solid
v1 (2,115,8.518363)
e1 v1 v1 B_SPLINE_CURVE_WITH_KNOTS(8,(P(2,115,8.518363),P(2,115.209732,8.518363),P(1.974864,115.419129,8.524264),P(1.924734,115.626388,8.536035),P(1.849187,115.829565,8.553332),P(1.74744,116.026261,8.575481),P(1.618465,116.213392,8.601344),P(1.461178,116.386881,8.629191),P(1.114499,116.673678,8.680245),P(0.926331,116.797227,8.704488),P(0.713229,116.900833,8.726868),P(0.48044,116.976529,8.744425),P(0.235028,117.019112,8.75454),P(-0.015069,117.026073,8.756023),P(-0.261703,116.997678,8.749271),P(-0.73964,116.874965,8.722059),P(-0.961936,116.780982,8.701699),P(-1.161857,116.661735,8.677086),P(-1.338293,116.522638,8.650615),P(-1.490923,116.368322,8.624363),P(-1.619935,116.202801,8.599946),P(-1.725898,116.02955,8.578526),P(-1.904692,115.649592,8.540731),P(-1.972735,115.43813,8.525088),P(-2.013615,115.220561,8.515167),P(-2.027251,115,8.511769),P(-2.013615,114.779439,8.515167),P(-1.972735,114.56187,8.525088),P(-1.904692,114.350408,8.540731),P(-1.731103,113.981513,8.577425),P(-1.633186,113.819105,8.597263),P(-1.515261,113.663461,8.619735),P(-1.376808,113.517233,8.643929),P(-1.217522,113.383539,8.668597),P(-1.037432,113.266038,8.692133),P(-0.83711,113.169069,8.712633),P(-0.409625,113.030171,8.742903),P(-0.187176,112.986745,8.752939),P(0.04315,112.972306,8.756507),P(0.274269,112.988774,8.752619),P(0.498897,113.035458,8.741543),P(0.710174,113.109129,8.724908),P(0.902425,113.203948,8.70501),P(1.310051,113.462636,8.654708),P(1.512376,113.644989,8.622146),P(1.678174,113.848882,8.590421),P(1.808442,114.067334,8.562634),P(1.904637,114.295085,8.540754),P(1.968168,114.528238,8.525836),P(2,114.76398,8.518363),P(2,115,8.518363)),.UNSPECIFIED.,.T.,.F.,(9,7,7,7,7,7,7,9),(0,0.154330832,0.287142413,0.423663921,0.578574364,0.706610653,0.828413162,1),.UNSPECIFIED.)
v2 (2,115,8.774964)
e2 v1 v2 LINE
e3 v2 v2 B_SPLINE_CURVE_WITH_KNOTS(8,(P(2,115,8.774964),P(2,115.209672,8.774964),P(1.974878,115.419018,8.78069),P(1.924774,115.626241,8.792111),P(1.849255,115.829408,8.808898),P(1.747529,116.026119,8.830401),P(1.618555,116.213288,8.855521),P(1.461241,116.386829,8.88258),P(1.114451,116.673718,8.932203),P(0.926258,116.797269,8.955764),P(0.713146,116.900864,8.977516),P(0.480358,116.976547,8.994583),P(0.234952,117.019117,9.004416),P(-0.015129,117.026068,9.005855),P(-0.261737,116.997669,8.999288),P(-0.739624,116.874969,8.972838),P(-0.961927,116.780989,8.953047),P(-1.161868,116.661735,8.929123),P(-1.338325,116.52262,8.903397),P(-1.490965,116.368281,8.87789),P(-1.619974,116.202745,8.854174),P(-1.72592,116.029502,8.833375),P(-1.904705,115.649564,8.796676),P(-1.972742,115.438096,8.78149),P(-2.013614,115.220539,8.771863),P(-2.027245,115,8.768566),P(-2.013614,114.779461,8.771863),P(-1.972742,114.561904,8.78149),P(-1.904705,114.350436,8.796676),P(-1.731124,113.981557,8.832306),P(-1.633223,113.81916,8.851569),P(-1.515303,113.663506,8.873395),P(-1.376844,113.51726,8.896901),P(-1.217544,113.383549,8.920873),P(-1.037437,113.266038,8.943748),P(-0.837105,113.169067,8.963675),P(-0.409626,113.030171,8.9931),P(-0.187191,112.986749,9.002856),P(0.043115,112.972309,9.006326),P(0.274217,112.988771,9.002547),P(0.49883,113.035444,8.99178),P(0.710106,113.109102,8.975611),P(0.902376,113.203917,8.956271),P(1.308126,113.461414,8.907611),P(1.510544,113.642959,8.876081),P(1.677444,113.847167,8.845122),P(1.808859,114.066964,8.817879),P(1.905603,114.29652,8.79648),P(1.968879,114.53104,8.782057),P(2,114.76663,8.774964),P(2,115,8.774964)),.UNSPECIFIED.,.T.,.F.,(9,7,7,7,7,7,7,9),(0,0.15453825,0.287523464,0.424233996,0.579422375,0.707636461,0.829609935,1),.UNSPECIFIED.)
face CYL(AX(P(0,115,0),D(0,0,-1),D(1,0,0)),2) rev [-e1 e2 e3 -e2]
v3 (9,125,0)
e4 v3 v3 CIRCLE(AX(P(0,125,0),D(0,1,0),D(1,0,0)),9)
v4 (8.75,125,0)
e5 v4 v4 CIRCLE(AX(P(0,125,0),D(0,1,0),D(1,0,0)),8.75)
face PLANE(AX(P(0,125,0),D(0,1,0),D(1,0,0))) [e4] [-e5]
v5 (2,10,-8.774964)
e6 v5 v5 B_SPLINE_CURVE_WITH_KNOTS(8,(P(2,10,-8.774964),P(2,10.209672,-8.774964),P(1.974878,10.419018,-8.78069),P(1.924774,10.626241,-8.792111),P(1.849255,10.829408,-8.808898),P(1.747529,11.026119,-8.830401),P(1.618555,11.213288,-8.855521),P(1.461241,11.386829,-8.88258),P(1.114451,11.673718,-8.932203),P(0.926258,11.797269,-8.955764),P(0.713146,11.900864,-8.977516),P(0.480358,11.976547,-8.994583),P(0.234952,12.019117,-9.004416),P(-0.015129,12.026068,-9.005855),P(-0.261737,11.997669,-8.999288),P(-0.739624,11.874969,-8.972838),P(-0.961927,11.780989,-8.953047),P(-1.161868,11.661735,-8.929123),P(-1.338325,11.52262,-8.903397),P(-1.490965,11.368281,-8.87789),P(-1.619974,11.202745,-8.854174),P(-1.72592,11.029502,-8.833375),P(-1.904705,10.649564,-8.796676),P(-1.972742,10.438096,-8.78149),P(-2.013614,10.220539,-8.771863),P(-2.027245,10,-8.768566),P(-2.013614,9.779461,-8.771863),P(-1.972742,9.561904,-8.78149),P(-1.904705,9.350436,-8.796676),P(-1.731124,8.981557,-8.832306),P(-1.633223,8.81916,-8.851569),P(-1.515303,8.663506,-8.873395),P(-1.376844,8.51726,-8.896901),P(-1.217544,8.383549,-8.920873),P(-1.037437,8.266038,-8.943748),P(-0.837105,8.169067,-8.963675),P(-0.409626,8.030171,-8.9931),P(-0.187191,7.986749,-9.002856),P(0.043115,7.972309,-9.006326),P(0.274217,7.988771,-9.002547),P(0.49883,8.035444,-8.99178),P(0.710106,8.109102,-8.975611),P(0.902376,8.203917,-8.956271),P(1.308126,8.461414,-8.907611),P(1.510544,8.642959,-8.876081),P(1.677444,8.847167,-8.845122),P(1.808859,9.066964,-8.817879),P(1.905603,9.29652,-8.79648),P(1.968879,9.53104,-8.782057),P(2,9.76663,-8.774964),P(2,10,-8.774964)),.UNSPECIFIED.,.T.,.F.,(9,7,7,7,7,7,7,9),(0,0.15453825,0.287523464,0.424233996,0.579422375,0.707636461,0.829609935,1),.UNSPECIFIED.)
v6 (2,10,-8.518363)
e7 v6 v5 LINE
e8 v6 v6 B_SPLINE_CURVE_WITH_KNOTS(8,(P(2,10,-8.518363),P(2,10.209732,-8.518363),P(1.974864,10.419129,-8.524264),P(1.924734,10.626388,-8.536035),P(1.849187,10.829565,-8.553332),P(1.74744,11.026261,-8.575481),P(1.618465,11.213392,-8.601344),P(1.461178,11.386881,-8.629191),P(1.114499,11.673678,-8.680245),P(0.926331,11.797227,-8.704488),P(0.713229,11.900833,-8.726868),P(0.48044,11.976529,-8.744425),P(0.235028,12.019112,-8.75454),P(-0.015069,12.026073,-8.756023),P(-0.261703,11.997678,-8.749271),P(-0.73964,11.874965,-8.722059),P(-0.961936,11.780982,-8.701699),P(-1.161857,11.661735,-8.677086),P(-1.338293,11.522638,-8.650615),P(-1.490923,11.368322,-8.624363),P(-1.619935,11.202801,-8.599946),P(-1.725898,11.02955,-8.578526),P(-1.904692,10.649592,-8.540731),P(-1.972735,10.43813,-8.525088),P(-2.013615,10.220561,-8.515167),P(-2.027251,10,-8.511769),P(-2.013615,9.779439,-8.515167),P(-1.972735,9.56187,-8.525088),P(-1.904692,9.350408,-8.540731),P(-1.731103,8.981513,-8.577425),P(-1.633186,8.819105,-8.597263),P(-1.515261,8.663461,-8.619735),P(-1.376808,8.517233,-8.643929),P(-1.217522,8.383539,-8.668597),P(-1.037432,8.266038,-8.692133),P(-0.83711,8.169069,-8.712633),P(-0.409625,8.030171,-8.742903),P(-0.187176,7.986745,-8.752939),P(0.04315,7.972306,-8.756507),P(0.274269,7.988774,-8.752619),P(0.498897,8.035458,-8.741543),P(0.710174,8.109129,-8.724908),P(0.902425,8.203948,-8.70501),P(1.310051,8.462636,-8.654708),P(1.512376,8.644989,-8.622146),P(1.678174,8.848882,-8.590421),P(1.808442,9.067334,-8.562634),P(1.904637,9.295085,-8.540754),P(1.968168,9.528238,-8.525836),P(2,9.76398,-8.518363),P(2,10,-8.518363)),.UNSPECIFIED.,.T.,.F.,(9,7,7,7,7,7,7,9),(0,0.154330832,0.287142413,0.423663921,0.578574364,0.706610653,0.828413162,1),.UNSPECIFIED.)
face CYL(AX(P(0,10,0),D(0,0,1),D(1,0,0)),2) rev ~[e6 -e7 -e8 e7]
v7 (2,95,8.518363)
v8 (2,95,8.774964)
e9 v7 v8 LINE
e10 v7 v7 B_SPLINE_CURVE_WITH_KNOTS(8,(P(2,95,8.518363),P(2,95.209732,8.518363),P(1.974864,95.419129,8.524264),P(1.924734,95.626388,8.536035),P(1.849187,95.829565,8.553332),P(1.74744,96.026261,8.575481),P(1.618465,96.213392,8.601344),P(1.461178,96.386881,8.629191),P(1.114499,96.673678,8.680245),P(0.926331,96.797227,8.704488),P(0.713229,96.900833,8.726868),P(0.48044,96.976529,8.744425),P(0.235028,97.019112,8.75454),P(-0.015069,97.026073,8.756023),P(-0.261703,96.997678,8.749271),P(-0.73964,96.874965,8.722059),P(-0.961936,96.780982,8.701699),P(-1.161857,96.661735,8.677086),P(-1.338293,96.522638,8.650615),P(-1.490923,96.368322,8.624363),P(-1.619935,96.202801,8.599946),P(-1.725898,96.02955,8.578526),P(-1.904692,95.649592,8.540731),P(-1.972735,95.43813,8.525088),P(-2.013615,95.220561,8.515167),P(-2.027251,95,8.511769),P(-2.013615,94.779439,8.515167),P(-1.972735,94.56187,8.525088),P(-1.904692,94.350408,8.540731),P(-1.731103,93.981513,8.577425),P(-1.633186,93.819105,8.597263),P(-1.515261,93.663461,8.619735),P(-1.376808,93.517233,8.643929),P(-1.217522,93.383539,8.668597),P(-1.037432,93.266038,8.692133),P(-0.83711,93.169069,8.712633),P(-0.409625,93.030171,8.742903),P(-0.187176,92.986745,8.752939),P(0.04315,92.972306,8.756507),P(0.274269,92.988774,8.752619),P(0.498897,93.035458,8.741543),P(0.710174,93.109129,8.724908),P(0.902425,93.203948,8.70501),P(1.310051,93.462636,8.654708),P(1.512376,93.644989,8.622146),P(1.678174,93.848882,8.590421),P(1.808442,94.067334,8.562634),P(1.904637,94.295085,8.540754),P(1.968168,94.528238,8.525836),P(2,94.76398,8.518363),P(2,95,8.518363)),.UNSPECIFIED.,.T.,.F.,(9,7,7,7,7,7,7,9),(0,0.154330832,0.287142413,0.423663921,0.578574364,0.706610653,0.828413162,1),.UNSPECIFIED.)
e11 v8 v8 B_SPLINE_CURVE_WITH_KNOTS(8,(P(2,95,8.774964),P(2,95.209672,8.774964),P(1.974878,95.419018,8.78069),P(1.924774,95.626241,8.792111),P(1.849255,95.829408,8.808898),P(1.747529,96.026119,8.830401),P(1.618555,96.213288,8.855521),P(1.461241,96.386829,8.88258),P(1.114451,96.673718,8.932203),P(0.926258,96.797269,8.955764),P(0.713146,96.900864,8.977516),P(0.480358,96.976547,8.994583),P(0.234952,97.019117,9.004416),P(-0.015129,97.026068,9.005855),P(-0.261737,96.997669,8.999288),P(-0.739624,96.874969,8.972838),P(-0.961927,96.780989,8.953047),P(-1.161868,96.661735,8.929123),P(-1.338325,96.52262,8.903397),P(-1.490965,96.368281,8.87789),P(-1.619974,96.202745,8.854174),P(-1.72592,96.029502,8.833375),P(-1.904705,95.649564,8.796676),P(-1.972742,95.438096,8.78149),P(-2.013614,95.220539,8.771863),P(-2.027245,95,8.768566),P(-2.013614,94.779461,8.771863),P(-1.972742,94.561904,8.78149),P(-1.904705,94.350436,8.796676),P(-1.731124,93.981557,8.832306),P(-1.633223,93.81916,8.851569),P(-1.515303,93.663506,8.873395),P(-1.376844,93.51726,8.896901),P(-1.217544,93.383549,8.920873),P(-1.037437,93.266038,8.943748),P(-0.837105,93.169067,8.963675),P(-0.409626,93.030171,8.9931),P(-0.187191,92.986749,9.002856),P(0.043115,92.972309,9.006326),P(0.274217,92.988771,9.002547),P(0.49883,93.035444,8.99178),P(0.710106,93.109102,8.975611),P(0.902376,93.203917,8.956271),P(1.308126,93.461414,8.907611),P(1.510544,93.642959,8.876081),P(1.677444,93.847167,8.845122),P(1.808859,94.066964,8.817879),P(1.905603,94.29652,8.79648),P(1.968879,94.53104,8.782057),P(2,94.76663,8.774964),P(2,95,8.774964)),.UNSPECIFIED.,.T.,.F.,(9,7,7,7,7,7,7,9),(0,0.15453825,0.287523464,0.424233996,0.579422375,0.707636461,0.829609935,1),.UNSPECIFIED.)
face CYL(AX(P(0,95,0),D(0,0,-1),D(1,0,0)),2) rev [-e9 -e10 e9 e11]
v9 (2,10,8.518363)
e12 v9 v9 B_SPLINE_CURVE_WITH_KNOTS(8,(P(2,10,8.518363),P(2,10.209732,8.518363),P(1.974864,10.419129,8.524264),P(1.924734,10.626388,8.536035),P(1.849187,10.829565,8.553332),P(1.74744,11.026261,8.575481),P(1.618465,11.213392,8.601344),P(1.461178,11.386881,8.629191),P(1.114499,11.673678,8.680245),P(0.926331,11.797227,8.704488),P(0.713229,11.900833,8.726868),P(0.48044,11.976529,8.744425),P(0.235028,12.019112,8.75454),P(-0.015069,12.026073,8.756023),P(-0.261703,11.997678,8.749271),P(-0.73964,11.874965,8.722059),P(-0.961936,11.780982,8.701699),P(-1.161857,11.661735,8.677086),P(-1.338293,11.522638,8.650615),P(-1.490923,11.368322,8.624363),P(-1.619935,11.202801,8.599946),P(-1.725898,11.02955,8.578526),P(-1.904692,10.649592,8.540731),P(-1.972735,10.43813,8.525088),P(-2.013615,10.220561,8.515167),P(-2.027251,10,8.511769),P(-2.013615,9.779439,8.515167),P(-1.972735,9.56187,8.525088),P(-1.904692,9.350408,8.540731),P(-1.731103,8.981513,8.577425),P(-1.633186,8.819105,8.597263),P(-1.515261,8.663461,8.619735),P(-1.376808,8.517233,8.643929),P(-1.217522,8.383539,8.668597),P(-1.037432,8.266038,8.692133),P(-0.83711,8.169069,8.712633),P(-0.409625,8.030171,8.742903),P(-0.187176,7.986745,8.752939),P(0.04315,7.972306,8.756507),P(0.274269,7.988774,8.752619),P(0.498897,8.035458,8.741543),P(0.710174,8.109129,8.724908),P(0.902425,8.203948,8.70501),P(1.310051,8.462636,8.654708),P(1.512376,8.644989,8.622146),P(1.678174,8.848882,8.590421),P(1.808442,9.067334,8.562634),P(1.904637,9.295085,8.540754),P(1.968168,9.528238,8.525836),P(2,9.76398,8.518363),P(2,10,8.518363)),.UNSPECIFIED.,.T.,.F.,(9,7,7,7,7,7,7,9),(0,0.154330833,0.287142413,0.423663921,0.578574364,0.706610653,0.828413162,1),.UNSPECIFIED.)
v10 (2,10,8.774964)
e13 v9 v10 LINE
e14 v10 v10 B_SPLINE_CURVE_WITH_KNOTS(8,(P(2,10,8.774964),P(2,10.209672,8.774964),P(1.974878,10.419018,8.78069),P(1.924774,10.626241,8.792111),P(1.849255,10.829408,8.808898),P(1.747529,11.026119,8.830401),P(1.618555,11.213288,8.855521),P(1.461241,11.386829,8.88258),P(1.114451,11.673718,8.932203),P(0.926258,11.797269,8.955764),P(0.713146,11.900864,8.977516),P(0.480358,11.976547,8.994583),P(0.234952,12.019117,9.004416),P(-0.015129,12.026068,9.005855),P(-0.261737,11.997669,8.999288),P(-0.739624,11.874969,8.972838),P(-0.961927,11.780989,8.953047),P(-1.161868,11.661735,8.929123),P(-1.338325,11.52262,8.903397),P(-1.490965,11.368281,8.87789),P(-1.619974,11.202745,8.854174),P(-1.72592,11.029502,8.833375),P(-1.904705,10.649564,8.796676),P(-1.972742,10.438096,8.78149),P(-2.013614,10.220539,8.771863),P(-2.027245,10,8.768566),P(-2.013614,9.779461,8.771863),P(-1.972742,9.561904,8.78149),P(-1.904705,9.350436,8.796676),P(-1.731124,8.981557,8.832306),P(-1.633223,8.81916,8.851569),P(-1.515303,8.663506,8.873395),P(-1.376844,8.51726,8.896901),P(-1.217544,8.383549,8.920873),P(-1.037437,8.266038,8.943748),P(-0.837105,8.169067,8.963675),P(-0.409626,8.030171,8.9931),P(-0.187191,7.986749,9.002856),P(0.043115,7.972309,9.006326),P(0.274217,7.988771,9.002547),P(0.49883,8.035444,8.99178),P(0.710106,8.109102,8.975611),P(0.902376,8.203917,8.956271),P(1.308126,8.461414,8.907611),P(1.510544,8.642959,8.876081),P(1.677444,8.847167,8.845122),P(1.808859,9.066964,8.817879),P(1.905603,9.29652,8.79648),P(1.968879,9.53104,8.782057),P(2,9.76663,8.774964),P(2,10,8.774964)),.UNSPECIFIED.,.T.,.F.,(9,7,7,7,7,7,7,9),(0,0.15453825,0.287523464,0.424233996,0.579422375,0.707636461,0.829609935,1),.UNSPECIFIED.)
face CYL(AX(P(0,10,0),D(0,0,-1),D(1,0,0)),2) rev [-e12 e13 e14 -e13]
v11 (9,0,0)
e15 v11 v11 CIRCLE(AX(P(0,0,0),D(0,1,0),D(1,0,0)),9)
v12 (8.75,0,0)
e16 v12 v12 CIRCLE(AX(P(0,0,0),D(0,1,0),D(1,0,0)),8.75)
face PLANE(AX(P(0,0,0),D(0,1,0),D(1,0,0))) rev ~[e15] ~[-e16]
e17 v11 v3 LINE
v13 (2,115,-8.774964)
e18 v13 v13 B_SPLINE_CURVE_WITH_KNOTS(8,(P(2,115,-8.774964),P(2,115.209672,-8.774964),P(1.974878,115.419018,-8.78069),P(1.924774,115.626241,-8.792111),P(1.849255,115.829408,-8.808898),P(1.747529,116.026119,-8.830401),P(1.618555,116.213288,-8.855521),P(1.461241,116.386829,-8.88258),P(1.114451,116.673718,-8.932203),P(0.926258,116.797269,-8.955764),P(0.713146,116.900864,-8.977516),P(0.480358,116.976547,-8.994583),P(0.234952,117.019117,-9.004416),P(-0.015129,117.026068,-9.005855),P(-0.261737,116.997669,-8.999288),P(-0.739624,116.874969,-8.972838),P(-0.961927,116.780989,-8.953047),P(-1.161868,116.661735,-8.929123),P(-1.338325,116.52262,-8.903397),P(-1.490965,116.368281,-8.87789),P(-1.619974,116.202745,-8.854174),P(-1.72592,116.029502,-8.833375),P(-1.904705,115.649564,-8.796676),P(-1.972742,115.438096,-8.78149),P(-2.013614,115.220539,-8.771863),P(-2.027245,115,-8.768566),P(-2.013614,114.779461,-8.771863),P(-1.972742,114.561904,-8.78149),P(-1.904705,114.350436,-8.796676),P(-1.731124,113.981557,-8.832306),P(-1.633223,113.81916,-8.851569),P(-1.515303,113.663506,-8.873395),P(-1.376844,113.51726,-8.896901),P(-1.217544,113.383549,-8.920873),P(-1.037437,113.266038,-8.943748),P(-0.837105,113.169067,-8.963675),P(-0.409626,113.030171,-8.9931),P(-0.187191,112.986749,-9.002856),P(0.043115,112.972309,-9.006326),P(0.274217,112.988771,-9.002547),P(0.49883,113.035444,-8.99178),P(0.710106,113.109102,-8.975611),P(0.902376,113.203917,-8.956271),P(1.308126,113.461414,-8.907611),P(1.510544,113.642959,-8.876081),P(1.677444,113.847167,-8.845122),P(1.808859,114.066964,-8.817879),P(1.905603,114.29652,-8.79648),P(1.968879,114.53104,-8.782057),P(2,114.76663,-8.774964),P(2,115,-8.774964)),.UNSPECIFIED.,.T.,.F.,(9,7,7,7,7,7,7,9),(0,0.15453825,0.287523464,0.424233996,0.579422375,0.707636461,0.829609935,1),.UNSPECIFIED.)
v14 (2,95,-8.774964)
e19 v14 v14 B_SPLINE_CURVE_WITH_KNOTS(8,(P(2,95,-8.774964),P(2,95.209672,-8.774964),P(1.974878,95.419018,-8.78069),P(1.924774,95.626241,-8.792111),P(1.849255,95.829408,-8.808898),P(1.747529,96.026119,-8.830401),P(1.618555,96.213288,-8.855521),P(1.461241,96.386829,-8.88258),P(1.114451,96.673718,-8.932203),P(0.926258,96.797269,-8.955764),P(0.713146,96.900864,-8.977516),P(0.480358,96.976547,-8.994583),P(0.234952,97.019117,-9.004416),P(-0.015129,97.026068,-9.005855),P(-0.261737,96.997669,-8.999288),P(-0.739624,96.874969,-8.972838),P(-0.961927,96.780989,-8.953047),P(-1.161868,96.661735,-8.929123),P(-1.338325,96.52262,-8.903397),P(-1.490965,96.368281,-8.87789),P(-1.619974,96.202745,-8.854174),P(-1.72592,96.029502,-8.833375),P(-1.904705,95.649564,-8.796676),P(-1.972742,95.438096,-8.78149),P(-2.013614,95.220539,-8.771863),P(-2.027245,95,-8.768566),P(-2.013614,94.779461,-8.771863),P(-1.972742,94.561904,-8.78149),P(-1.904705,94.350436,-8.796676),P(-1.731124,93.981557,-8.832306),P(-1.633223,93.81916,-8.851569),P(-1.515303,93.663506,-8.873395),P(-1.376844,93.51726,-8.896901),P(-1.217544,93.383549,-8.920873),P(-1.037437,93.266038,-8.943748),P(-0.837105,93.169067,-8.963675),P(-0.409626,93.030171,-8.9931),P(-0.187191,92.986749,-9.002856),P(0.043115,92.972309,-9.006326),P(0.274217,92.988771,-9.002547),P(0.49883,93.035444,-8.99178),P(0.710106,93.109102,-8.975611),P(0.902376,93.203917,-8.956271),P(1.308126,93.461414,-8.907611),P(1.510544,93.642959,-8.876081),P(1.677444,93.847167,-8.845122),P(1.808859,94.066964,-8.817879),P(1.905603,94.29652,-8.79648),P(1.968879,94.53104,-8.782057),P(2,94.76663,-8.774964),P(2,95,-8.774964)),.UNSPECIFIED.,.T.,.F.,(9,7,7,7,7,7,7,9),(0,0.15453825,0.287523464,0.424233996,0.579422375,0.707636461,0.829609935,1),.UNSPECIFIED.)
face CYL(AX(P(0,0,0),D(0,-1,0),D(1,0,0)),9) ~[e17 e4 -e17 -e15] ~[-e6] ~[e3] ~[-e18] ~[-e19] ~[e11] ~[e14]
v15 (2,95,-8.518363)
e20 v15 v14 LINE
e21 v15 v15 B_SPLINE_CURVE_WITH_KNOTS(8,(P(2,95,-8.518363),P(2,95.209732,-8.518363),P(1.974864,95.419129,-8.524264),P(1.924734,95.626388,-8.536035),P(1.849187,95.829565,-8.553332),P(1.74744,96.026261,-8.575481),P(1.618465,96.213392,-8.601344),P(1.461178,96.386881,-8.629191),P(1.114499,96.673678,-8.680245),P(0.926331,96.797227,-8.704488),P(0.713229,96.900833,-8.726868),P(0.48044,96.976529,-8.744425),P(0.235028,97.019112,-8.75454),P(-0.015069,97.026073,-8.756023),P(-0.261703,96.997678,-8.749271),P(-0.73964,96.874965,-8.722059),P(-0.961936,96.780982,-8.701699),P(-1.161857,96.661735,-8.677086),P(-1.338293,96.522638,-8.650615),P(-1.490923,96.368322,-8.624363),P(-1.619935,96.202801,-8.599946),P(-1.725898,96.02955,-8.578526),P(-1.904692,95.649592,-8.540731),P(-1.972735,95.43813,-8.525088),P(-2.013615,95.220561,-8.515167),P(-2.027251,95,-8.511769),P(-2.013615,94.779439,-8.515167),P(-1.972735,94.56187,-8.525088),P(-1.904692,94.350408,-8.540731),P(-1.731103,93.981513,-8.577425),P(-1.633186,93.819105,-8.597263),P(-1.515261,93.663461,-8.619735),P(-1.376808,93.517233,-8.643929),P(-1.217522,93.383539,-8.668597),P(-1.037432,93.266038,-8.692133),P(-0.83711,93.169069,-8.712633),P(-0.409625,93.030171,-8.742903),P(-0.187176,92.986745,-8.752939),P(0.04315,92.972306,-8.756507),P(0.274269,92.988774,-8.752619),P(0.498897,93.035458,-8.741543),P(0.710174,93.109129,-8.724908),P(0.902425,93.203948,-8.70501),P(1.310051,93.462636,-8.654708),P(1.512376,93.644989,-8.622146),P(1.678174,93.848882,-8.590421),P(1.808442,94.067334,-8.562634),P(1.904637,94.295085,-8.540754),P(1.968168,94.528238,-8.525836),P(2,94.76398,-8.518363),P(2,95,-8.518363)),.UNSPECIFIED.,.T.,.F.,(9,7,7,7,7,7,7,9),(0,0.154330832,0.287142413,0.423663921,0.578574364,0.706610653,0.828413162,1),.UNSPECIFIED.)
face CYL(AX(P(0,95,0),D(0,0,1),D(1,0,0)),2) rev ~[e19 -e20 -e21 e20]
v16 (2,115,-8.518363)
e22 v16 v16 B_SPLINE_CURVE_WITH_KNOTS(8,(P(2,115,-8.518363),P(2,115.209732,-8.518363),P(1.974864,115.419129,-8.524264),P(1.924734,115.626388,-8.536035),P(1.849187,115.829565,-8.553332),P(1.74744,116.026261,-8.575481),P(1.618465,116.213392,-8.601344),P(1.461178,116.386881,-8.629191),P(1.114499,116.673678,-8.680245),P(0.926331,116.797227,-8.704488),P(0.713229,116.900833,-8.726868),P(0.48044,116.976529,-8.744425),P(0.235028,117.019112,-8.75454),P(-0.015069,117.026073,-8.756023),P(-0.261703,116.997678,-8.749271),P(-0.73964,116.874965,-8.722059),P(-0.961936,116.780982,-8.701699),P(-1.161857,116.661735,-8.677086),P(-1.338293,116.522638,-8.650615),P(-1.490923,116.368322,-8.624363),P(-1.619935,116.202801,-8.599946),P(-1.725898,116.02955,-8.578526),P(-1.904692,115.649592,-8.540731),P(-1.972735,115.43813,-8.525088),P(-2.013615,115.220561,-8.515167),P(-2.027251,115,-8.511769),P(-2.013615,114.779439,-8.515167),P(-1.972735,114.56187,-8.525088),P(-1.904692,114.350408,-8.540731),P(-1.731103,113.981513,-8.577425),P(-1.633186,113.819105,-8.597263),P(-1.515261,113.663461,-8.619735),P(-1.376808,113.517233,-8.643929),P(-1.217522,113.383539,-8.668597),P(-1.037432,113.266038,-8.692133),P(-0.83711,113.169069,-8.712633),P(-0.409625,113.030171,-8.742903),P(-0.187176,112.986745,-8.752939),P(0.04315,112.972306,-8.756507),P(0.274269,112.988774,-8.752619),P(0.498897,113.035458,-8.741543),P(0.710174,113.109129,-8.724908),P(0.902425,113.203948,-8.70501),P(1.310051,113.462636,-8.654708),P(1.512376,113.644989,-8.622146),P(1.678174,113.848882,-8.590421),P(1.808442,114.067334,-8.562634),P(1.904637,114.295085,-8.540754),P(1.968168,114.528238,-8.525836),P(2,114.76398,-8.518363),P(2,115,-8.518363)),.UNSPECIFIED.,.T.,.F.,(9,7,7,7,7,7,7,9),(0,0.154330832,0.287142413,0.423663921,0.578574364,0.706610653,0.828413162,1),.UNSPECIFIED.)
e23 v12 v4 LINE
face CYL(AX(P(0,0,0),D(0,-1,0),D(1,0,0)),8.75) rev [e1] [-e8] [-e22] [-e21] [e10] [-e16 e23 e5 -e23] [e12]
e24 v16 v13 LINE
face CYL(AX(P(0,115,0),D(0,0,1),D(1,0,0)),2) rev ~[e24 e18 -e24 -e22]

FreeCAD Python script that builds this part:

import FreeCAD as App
import Part
import Sketcher

V = App.Vector
Q = App.Units.Quantity

doc = App.newDocument("Part")
body = doc.addObject("PartDesign::Body", "Body")

sketch1 = doc.addObject("Sketcher::SketchObject", "Sketch")
body.addObject(sketch1)
sketch1.AttachmentSupport = (doc.XZ_Plane, [""])
sketch1.MapMode = "FlatFace"
sketch1.addGeometry([
    Part.Circle(V(0, 0, 0), V(0, 0, 1), 9),
    Part.Circle(V(0, 0, 0), V(0, 0, 1), 9),
], False)
sketch1.addConstraint([
    Sketcher.Constraint("Coincident", 0, 3, -1, 1),
    Sketcher.Constraint("Coincident", 1, 3, -1, 1),
    Sketcher.Constraint("Diameter", 0, Q("18 mm")),
    Sketcher.Constraint("Diameter", 1, Q("17.5 mm")),
])
pad1 = doc.addObject("PartDesign::Pad", "Pad")
body.addObject(pad1)
pad1.Profile = sketch1
pad1.Length = 125
pad1.Reversed = True

sketch2 = doc.addObject("Sketcher::SketchObject", "Sketch001")
body.addObject(sketch2)
sketch2.AttachmentSupport = (doc.XY_Plane, [""])
sketch2.MapMode = "FlatFace"
sketch2.addGeometry([
    Part.Circle(V(0, 95, 0), V(0, 0, 1), 2),
    Part.Circle(V(0, 115, 0), V(0, 0, 1), 2),
    Part.Circle(V(0, 10, 0), V(0, 0, 1), 2),
], False)
sketch2.addConstraint([
    Sketcher.Constraint("Equal", 0, 1),
    Sketcher.Constraint("Equal", 1, 2),
    Sketcher.Constraint("PointOnObject", 0, 3, -2),
    Sketcher.Constraint("PointOnObject", 1, 3, -2),
    Sketcher.Constraint("PointOnObject", 2, 3, -2),
    Sketcher.Constraint("Diameter", 0, Q("4 mm")),
    Sketcher.Constraint("DistanceY", -1, 1, 0, 3, Q("95 mm")),
    Sketcher.Constraint("DistanceY", -1, 1, 1, 3, Q("115 mm")),
    Sketcher.Constraint("DistanceY", -1, 1, 2, 3, Q("10 mm")),
])
pocket1 = doc.addObject("PartDesign::Pocket", "Pocket")
body.addObject(pocket1)
pocket1.Profile = sketch2
pocket1.Type = "ThroughAll"
pocket1.Midplane = True

doc.recompute()
